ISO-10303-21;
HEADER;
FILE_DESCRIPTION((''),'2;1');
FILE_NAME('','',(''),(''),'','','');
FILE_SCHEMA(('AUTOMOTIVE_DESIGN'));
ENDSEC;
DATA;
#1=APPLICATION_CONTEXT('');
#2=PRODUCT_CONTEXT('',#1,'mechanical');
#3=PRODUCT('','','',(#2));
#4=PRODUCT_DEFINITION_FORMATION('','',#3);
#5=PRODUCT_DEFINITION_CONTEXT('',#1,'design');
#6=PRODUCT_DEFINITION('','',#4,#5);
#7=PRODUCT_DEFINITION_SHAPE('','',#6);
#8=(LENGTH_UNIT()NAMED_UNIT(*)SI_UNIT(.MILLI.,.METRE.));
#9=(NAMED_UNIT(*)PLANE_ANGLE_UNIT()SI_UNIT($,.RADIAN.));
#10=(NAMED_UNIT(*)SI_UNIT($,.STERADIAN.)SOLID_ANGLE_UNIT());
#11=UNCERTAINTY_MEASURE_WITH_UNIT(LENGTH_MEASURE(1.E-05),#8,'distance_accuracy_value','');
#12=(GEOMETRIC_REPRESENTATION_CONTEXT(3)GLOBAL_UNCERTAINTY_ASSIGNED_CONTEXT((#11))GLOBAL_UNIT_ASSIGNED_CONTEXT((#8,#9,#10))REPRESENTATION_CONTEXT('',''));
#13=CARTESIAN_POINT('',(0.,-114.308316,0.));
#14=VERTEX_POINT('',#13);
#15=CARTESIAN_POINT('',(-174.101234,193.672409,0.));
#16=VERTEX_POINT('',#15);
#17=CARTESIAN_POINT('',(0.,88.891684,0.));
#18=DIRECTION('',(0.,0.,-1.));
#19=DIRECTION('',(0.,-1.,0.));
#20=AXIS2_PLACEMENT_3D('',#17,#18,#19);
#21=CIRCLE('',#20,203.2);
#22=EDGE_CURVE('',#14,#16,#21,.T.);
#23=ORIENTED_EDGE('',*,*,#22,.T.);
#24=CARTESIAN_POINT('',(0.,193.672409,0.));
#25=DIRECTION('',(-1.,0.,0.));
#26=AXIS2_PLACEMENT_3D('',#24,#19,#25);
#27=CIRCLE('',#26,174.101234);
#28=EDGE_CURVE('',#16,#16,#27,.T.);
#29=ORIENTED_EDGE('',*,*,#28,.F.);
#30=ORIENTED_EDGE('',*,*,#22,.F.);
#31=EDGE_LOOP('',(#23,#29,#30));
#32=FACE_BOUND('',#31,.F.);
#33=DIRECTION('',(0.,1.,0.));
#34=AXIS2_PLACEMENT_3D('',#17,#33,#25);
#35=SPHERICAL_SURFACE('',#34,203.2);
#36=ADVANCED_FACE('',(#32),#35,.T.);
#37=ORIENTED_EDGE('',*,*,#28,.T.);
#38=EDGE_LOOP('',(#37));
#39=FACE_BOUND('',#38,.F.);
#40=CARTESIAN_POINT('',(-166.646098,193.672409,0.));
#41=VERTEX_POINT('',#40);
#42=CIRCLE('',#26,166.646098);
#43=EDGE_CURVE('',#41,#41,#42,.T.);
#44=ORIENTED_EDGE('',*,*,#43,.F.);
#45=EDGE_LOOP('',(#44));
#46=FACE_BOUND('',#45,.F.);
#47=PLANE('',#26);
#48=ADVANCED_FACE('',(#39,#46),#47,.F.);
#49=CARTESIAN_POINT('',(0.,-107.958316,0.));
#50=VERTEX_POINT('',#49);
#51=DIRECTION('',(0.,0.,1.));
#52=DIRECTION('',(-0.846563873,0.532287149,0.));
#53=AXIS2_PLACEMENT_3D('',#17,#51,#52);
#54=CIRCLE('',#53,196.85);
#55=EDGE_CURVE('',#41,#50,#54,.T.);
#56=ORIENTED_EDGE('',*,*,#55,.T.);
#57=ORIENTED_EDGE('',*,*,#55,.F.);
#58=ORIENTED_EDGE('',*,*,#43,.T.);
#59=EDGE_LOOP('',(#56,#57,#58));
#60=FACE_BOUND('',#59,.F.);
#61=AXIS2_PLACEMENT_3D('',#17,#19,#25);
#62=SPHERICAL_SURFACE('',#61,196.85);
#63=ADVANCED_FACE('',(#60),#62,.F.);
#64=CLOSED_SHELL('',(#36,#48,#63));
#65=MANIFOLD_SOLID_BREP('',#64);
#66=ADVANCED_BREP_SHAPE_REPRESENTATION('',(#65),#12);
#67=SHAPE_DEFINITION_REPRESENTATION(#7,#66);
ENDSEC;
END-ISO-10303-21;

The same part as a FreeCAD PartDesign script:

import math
import FreeCAD as App
import Part
import Sketcher
from FreeCAD import Vector
Q = App.Units.Quantity

doc = App.newDocument("Part")
body = doc.addObject("PartDesign::Body", "Body")

# Sketch on XY plane
sketch1 = body.newObject("Sketcher::SketchObject", "Sketch")
sketch1.AttachmentSupport = (doc.getObject("XY_Plane"), [""])
sketch1.MapMode = "FlatFace"
sketch1.addGeometry([
    Part.LineSegment(Vector(174, 194, 0), Vector(167, 194, 0)),
    Part.ArcOfCircle(Part.Circle(Vector(0, 89, 0), Vector(0, 0, 1), 197), math.radians(-90), math.radians(32)),
    Part.LineSegment(Vector(0, -108, 0), Vector(0, -114, 0)),
    Part.ArcOfCircle(Part.Circle(Vector(0, 89, 0), Vector(0, 0, 1), 203), math.radians(-90), math.radians(31)),
], False)
sketch1.addConstraint([
    Sketcher.Constraint("Coincident", 0, 2, 1, 2),
    Sketcher.Constraint("Coincident", 1, 1, 2, 1),
    Sketcher.Constraint("Coincident", 2, 2, 3, 1),
    Sketcher.Constraint("Coincident", 3, 2, 0, 1),
    Sketcher.Constraint("Horizontal", 0),
    Sketcher.Constraint("Vertical", 2),
    Sketcher.Constraint("Coincident", 3, 3, 1, 3),
    Sketcher.Constraint("PointOnObject", 1, 3, -2),
    Sketcher.Constraint("PointOnObject", 1, 1, -2),
    Sketcher.Constraint("Radius", 3, Q("8 in")),
    Sketcher.Constraint("Radius", 1, Q("7.75 in")),
    Sketcher.Constraint("DistanceX", -1, 1, 0, 2, Q("166.646098 mm")),
    Sketcher.Constraint("DistanceY", -1, 1, 0, 2, Q("193.672409 mm")),
])
revolution = body.newObject("PartDesign::Revolution", "Revolution")
revolution.Profile = sketch1
revolution.ReferenceAxis = (sketch1, ["V_Axis"])
revolution.Angle = 360

doc.recompute()
